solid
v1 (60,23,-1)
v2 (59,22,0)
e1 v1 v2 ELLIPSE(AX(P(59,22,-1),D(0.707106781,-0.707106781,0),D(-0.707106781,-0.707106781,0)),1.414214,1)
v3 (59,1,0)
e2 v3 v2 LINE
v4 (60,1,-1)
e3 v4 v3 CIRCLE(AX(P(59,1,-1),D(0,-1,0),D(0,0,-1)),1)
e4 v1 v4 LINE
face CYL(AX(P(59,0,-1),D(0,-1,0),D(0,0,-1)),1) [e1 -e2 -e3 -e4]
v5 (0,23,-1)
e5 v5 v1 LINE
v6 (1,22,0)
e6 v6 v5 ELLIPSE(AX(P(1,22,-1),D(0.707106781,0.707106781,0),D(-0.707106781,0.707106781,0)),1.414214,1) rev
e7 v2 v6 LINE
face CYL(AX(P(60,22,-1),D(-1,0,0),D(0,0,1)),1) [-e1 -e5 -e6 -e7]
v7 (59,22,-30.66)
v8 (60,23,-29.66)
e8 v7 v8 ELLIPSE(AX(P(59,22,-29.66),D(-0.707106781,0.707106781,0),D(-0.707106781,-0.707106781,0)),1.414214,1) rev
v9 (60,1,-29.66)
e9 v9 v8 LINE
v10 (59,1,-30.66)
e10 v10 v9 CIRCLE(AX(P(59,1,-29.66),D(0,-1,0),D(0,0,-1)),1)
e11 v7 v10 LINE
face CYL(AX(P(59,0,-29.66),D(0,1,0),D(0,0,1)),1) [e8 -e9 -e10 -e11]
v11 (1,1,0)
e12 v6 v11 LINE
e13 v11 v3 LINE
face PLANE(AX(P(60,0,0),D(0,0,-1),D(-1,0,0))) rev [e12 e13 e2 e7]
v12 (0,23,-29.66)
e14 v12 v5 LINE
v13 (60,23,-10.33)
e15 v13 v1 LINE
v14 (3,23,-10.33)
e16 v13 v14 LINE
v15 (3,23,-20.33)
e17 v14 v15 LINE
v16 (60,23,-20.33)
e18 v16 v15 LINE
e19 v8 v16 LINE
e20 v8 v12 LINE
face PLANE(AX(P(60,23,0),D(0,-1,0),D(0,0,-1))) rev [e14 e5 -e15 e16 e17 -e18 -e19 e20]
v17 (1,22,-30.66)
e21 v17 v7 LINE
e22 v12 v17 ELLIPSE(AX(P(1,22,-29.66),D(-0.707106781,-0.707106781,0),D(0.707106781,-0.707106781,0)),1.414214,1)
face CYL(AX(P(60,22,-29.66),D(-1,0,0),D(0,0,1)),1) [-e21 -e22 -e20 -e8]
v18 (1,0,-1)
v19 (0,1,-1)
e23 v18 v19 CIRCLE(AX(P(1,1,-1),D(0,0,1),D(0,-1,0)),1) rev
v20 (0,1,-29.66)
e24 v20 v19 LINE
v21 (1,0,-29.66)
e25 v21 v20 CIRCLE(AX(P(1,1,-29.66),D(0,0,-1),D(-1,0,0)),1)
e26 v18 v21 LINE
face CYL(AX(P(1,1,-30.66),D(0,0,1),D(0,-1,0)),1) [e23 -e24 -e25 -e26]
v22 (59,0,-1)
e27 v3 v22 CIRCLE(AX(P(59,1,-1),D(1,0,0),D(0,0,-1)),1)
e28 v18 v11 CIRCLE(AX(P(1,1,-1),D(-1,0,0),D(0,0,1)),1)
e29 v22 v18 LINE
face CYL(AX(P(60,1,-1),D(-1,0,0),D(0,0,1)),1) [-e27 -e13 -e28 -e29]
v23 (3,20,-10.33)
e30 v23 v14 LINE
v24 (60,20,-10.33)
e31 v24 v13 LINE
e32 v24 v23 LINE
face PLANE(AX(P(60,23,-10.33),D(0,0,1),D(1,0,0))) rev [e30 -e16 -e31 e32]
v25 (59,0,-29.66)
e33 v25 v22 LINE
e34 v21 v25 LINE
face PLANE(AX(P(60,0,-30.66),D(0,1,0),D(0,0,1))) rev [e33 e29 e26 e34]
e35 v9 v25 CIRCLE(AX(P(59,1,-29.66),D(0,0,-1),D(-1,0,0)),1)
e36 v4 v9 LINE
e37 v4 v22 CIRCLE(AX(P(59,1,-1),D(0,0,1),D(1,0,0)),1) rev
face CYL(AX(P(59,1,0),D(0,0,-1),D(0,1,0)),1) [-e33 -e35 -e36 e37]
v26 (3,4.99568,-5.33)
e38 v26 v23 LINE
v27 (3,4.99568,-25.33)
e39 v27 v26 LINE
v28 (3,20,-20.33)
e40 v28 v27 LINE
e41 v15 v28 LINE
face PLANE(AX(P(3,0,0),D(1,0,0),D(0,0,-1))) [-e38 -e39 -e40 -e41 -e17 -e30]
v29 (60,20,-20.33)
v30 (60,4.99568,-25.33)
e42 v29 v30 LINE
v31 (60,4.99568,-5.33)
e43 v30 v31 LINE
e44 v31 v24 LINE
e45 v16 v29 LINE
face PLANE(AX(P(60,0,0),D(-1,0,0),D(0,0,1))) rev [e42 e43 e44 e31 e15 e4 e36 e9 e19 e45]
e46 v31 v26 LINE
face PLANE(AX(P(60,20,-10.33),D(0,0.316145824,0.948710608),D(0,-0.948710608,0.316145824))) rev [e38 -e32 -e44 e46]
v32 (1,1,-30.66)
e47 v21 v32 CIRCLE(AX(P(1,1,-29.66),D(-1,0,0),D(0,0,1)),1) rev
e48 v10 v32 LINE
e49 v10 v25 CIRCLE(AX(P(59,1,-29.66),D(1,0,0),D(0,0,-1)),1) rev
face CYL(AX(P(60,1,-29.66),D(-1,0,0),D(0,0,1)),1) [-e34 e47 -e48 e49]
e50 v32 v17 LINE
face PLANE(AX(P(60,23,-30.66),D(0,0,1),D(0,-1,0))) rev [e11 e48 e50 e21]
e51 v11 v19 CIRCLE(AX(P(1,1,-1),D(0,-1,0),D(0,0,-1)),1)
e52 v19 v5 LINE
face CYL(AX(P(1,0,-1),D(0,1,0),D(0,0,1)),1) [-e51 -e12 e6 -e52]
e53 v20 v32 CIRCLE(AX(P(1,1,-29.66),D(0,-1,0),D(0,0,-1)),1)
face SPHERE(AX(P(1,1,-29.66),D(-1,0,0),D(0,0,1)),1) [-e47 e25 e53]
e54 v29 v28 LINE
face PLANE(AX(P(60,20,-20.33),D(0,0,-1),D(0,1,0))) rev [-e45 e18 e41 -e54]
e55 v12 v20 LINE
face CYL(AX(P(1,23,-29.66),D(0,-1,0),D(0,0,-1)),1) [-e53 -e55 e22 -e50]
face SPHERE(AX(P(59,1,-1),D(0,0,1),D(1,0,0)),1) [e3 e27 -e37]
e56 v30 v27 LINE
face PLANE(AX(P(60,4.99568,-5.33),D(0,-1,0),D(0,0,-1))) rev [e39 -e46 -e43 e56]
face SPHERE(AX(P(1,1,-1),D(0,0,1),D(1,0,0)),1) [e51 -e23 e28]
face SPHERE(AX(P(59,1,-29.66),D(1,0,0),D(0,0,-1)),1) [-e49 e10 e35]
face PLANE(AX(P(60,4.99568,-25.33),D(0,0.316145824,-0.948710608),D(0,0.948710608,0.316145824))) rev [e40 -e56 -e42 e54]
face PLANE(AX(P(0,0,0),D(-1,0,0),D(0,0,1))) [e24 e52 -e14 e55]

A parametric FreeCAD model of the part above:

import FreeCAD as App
import Part
import Sketcher
from FreeCAD import Vector
Q = App.Units.Quantity


def edges_at(feature, points):
    """Names of the edges that pass closest to the given points."""
    edges = feature.Shape.Edges
    near = lambda p: min(range(len(edges)), key=lambda i: edges[i].distToShape(Part.Vertex(*p))[0])
    return sorted({f"Edge{near(p) + 1}" for p in points})

doc = App.newDocument("Part")
body = doc.addObject("PartDesign::Body", "Body")

# Sketch on YZ plane
sketch1 = doc.addObject("Sketcher::SketchObject", "Sketch")
body.addObject(sketch1)
sketch1.AttachmentSupport = (doc.YZ_Plane, [""])
sketch1.MapMode = "FlatFace"
sketch1.addGeometry(Part.LineSegment(Vector(23, 0, 0), Vector(0, 0, 0)), False)
sketch1.addGeometry(Part.LineSegment(Vector(0, 0, 0), Vector(0, -30.7, 0)), False)
sketch1.addGeometry(Part.LineSegment(Vector(0, -30.7, 0), Vector(23, -30.7, 0)), False)
sketch1.addGeometry(Part.LineSegment(Vector(23, -30.7, 0), Vector(23, -20.3, 0)), False)
sketch1.addGeometry(Part.LineSegment(Vector(23, -20.3, 0), Vector(20, -20.3, 0)), False)
sketch1.addGeometry(Part.LineSegment(Vector(20, -20.3, 0), Vector(5, -25.3, 0)), False)
sketch1.addGeometry(Part.LineSegment(Vector(5, -25.3, 0), Vector(5, -5.3, 0)), False)
sketch1.addGeometry(Part.LineSegment(Vector(5, -5.3, 0), Vector(20, -10.3, 0)), False)
sketch1.addGeometry(Part.LineSegment(Vector(20, -10.3, 0), Vector(23, -10.3, 0)), False)
sketch1.addGeometry(Part.LineSegment(Vector(23, -10.3, 0), Vector(23, 0, 0)), False)
sketch1.addConstraint(Sketcher.Constraint("Coincident", 0, 2, 1, 1))
sketch1.addConstraint(Sketcher.Constraint("Coincident", 1, 2, 2, 1))
sketch1.addConstraint(Sketcher.Constraint("Coincident", 2, 2, 3, 1))
sketch1.addConstraint(Sketcher.Constraint("Coincident", 3, 2, 4, 1))
sketch1.addConstraint(Sketcher.Constraint("Coincident", 4, 2, 5, 1))
sketch1.addConstraint(Sketcher.Constraint("Coincident", 5, 2, 6, 1))
sketch1.addConstraint(Sketcher.Constraint("Coincident", 6, 2, 7, 1))
sketch1.addConstraint(Sketcher.Constraint("Coincident", 7, 2, 8, 1))
sketch1.addConstraint(Sketcher.Constraint("Coincident", 8, 2, 9, 1))
sketch1.addConstraint(Sketcher.Constraint("Coincident", 9, 2, 0, 1))
sketch1.addConstraint(Sketcher.Constraint("Horizontal", 0))
sketch1.addConstraint(Sketcher.Constraint("Vertical", 1))
sketch1.addConstraint(Sketcher.Constraint("Horizontal", 2))
sketch1.addConstraint(Sketcher.Constraint("Vertical", 3))
sketch1.addConstraint(Sketcher.Constraint("Horizontal", 4))
sketch1.addConstraint(Sketcher.Constraint("Vertical", 6))
sketch1.addConstraint(Sketcher.Constraint("Horizontal", 8))
sketch1.addConstraint(Sketcher.Constraint("Vertical", 9))
sketch1.addConstraint(Sketcher.Constraint("Coincident", 0, 2, -1, 1))
sketch1.addConstraint(Sketcher.Constraint("Vertical", 4, 2, 7, 2))
sketch1.addConstraint(Sketcher.Constraint("Vertical", 3, 2, 8, 2))
sketch1.addConstraint(Sketcher.Constraint("Equal", 3, 9))
sketch1.addConstraint(Sketcher.Constraint("Equal", 5, 7))
sketch1.addConstraint(Sketcher.Constraint("DistanceX", 0, 2, 0, 1, Q("23 mm")))
sketch1.addConstraint(Sketcher.Constraint("DistanceX", 4, 2, 4, 1, Q("3 mm")))
sketch1.addConstraint(Sketcher.Constraint("DistanceY", 6, 1, 6, 2, Q("20 mm")))
sketch1.addConstraint(Sketcher.Constraint("DistanceY", 5, 2, 4, 2, Q("5 mm")))
sketch1.addConstraint(Sketcher.Constraint("DistanceY", 1, 2, 1, 1, Q("30.66 mm")))
sketch1.addConstraint(Sketcher.Constraint("Angle", 5, Q("-161.57 deg")))
pad1 = doc.addObject("PartDesign::Pad", "Pad")
body.addObject(pad1)
pad1.Profile = sketch1
pad1.Length = 60
doc.recompute()

fillet = doc.addObject("PartDesign::Fillet", "Fillet")
body.addObject(fillet)
fillet.Base = (pad1, edges_at(pad1, [
    (0, 11.5, 0),
    (0, 11.5, -30.66),
    (0, 0, -15.33),
    (30, 0, 0),
    (30, 23, 0),
    (30, 23, -30.66),
    (30, 0, -30.66),
    (60, 11.5, 0),
    (60, 0, -15.33),
    (60, 11.5, -30.66),
]))
fillet.Radius = 1

# Sketch on YZ plane
sketch2 = doc.addObject("Sketcher::SketchObject", "Sketch001")
body.addObject(sketch2)
sketch2.AttachmentSupport = (doc.YZ_Plane, [""])
sketch2.MapMode = "FlatFace"
sketch2.addGeometry(Part.LineSegment(Vector(23, -10.3, 0), Vector(23, -20.3, 0)), False)
sketch2.addGeometry(Part.LineSegment(Vector(23, -20.3, 0), Vector(20, -20.3, 0)), False)
sketch2.addGeometry(Part.LineSegment(Vector(20, -20.3, 0), Vector(5, -25.3, 0)), False)
sketch2.addGeometry(Part.LineSegment(Vector(5, -25.3, 0), Vector(5, -5.3, 0)), False)
sketch2.addGeometry(Part.LineSegment(Vector(5, -5.3, 0), Vector(20, -10.3, 0)), False)
sketch2.addGeometry(Part.LineSegment(Vector(20, -10.3, 0), Vector(23, -10.3, 0)), False)
sketch2.addConstraint(Sketcher.Constraint("Coincident", 0, 2, 1, 1))
sketch2.addConstraint(Sketcher.Constraint("Coincident", 1, 2, 2, 1))
sketch2.addConstraint(Sketcher.Constraint("Coincident", 2, 2, 3, 1))
sketch2.addConstraint(Sketcher.Constraint("Coincident", 3, 2, 4, 1))
sketch2.addConstraint(Sketcher.Constraint("Coincident", 4, 2, 5, 1))
sketch2.addConstraint(Sketcher.Constraint("Coincident", 5, 2, 0, 1))
sketch2.addConstraint(Sketcher.Constraint("Vertical", 0))
sketch2.addConstraint(Sketcher.Constraint("Horizontal", 1))
sketch2.addConstraint(Sketcher.Constraint("Vertical", 3))
sketch2.addConstraint(Sketcher.Constraint("Horizontal", 5))
sketch2.addConstraint(Sketcher.Constraint("Vertical", 1, 2, 4, 2))
sketch2.addConstraint(Sketcher.Constraint("Equal", 2, 4))
sketch2.addConstraint(Sketcher.Constraint("DistanceX", 1, 2, 1, 1, Q("3 mm")))
sketch2.addConstraint(Sketcher.Constraint("DistanceY", 0, 2, 0, 1, Q("10 mm")))
sketch2.addConstraint(Sketcher.Constraint("DistanceY", 3, 1, 3, 2, Q("20 mm")))
sketch2.addConstraint(Sketcher.Constraint("DistanceX", -1, 1, 0, 2, Q("23 mm")))
sketch2.addConstraint(Sketcher.Constraint("Angle", 2, Q("-161.57 deg")))
sketch2.addConstraint(Sketcher.Constraint("DistanceY", 0, 2, -1, 1, Q("20.33 mm")))
pad2 = doc.addObject("PartDesign::Pad", "Pad001")
body.addObject(pad2)
pad2.Profile = sketch2
pad2.Length = 3

doc.recompute()
